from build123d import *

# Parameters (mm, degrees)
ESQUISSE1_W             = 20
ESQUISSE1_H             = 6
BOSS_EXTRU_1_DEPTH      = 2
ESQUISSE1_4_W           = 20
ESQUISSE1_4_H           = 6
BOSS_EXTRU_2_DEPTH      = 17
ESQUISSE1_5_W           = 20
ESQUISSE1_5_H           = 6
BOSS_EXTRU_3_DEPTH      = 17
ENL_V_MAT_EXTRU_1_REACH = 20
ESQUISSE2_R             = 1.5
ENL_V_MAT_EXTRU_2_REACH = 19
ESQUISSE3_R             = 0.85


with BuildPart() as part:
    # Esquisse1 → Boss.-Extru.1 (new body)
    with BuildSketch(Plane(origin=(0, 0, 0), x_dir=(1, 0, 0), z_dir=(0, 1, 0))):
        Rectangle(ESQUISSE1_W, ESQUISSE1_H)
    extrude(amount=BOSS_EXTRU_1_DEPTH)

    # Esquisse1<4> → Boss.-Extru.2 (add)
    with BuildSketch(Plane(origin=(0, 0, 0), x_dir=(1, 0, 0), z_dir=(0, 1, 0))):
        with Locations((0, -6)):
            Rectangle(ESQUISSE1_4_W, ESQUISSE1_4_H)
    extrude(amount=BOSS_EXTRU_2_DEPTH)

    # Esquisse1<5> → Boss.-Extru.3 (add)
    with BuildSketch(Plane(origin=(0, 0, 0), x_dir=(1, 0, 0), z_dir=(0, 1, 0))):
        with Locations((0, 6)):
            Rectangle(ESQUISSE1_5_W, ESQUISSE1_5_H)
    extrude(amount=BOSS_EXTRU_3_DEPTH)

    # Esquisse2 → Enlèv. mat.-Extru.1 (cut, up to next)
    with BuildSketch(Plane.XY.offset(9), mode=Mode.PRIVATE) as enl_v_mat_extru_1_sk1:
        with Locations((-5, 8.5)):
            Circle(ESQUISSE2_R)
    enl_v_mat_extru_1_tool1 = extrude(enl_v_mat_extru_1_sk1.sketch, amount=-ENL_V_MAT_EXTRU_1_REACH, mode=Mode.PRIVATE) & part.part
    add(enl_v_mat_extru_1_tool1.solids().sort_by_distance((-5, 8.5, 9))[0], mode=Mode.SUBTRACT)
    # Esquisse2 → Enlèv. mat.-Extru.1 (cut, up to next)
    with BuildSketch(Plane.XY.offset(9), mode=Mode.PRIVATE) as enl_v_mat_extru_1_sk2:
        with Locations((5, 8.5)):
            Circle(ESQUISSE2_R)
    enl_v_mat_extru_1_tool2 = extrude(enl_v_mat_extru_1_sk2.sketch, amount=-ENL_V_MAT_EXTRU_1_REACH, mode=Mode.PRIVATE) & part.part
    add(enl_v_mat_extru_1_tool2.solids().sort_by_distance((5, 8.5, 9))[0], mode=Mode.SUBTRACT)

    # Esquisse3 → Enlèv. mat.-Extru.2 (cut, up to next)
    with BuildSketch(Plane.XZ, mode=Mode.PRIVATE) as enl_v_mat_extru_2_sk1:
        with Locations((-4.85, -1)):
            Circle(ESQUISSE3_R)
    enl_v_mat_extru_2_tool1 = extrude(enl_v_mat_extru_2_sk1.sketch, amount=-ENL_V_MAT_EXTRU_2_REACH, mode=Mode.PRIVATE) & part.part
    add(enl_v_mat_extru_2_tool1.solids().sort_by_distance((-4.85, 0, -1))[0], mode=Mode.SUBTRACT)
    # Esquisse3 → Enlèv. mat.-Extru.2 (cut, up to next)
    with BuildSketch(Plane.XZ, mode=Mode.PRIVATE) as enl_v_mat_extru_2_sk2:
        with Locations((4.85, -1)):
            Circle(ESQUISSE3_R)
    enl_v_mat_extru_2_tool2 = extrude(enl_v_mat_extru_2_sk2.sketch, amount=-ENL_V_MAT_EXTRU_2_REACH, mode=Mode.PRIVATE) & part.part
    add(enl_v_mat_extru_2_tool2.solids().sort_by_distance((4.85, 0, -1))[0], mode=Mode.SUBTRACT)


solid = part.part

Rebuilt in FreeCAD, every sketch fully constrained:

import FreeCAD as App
import Part
import Sketcher
from FreeCAD import Vector


def add_polygon(sketch, points):
    """Adds a closed chain of lines whose ends are joined by coincident constraints."""
    first, n = sketch.GeometryCount, len(points)
    for a, b in zip(points, points[1:] + points[:1]):
        sketch.addGeometry(Part.LineSegment(App.Vector(*a, 0), App.Vector(*b, 0)), False)
    for i in range(n):
        sketch.addConstraint(Sketcher.Constraint("Coincident", first + i, 2, first + (i + 1) % n, 1))

doc = App.newDocument("Part")
body = doc.addObject("PartDesign::Body", "Body")

# Sketch on XZ plane
sketch1 = body.newObject("Sketcher::SketchObject", "Sketch")
sketch1.AttachmentSupport = (doc.getObject("XZ_Plane"), [""])
sketch1.MapMode = "FlatFace"
add_polygon(sketch1, [(-10, -3), (-10, 3), (10, 3), (10, -3)])  # lines 0-3
sketch1.addConstraint(Sketcher.Constraint("Vertical", 0))
sketch1.addConstraint(Sketcher.Constraint("Horizontal", 1))
sketch1.addConstraint(Sketcher.Constraint("Vertical", 2))
sketch1.addConstraint(Sketcher.Constraint("Horizontal", 3))
sketch1.addConstraint(Sketcher.Constraint("Symmetric", 0, 2, 2, 2, -1, 1))
sketch1.addConstraint(Sketcher.Constraint("DistanceX", 1, 1, 1, 2, 20.0))
sketch1.addConstraint(Sketcher.Constraint("DistanceY", 0, 1, 0, 2, 6.0))
pad1 = body.newObject("PartDesign::Pad", "Pad")
pad1.Profile = sketch1
pad1.Length = 2
pad1.Reversed = True

# Sketch on XZ plane
sketch2 = body.newObject("Sketcher::SketchObject", "Sketch001")
sketch2.AttachmentSupport = (doc.getObject("XZ_Plane"), [""])
sketch2.MapMode = "FlatFace"
add_polygon(sketch2, [(-10, 3), (-10, 9), (10, 9), (10, 3)])  # lines 0-3
sketch2.addConstraint(Sketcher.Constraint("Vertical", 0))
sketch2.addConstraint(Sketcher.Constraint("Horizontal", 1))
sketch2.addConstraint(Sketcher.Constraint("Vertical", 2))
sketch2.addConstraint(Sketcher.Constraint("Horizontal", 3))
sketch2.addConstraint(Sketcher.Constraint("DistanceX", 1, 1, 1, 2, 20.0))
sketch2.addConstraint(Sketcher.Constraint("DistanceY", 0, 1, 0, 2, 6.0))
sketch2.addConstraint(Sketcher.Constraint("DistanceX", 0, 2, -1, 1, 10.0))
sketch2.addConstraint(Sketcher.Constraint("DistanceY", -1, 1, 0, 2, 9.0))
pad2 = body.newObject("PartDesign::Pad", "Pad001")
pad2.Profile = sketch2
pad2.Length = 17
pad2.Reversed = True

# Sketch on XZ plane
sketch3 = body.newObject("Sketcher::SketchObject", "Sketch002")
sketch3.AttachmentSupport = (doc.getObject("XZ_Plane"), [""])
sketch3.MapMode = "FlatFace"
add_polygon(sketch3, [(-10, -9), (-10, -3), (10, -3), (10, -9)])  # lines 0-3
sketch3.addConstraint(Sketcher.Constraint("Vertical", 0))
sketch3.addConstraint(Sketcher.Constraint("Horizontal", 1))
sketch3.addConstraint(Sketcher.Constraint("Vertical", 2))
sketch3.addConstraint(Sketcher.Constraint("Horizontal", 3))
sketch3.addConstraint(Sketcher.Constraint("DistanceX", 1, 1, 1, 2, 20.0))
sketch3.addConstraint(Sketcher.Constraint("DistanceY", 0, 1, 0, 2, 6.0))
sketch3.addConstraint(Sketcher.Constraint("DistanceX", 0, 2, -1, 1, 10.0))
sketch3.addConstraint(Sketcher.Constraint("DistanceY", 0, 2, -1, 1, 3.0))
pad3 = body.newObject("PartDesign::Pad", "Pad002")
pad3.Profile = sketch3
pad3.Length = 17
pad3.Reversed = True

# Sketch on XY plane
sketch4 = body.newObject("Sketcher::SketchObject", "Sketch003")
sketch4.AttachmentSupport = (doc.getObject("XY_Plane"), [""])
sketch4.MapMode = "FlatFace"
sketch4.AttachmentOffset = App.Placement(Vector(0, 0, 9), App.Rotation())
sketch4.addGeometry(Part.Circle(Vector(-5, 8.5, 0), Vector(0, 0, 1), 1.5), False)
sketch4.addConstraint(Sketcher.Constraint("Diameter", 0, 3.0))
sketch4.addConstraint(Sketcher.Constraint("DistanceX", 0, 3, -1, 1, 5.0))
sketch4.addConstraint(Sketcher.Constraint("DistanceY", -1, 1, 0, 3, 8.5))
pocket1 = body.newObject("PartDesign::Pocket", "Pocket")
pocket1.Profile = sketch4
pocket1.Type = "UpToFirst"

# Sketch on XY plane
sketch5 = body.newObject("Sketcher::SketchObject", "Sketch004")
sketch5.AttachmentSupport = (doc.getObject("XY_Plane"), [""])
sketch5.MapMode = "FlatFace"
sketch5.AttachmentOffset = App.Placement(Vector(0, 0, 9), App.Rotation())
sketch5.addGeometry(Part.Circle(Vector(5, 8.5, 0), Vector(0, 0, 1), 1.5), False)
sketch5.addConstraint(Sketcher.Constraint("Diameter", 0, 3.0))
sketch5.addConstraint(Sketcher.Constraint("DistanceX", -1, 1, 0, 3, 5.0))
sketch5.addConstraint(Sketcher.Constraint("DistanceY", -1, 1, 0, 3, 8.5))
pocket2 = body.newObject("PartDesign::Pocket", "Pocket001")
pocket2.Profile = sketch5
pocket2.Type = "UpToFirst"

# Sketch on XZ plane
sketch6 = body.newObject("Sketcher::SketchObject", "Sketch005")
sketch6.AttachmentSupport = (doc.getObject("XZ_Plane"), [""])
sketch6.MapMode = "FlatFace"
sketch6.addGeometry(Part.Circle(Vector(-4.8, -1, 0), Vector(0, 0, 1), 0.8), False)
sketch6.addConstraint(Sketcher.Constraint("Diameter", 0, 1.7))
sketch6.addConstraint(Sketcher.Constraint("DistanceY", 0, 3, -1, 1, 1.0))
sketch6.addConstraint(Sketcher.Constraint("DistanceX", 0, 3, -1, 1, 4.85))
pocket3 = body.newObject("PartDesign::Pocket", "Pocket002")
pocket3.Profile = sketch6
pocket3.Type = "UpToFirst"

# Sketch on XZ plane
sketch7 = body.newObject("Sketcher::SketchObject", "Sketch006")
sketch7.AttachmentSupport = (doc.getObject("XZ_Plane"), [""])
sketch7.MapMode = "FlatFace"
sketch7.addGeometry(Part.Circle(Vector(4.8, -1, 0), Vector(0, 0, 1), 0.8), False)
sketch7.addConstraint(Sketcher.Constraint("Diameter", 0, 1.7))
sketch7.addConstraint(Sketcher.Constraint("DistanceY", 0, 3, -1, 1, 1.0))
sketch7.addConstraint(Sketcher.Constraint("DistanceX", -1, 1, 0, 3, 4.85))
pocket4 = body.newObject("PartDesign::Pocket", "Pocket003")
pocket4.Profile = sketch7
pocket4.Type = "UpToFirst"

doc.recompute()
